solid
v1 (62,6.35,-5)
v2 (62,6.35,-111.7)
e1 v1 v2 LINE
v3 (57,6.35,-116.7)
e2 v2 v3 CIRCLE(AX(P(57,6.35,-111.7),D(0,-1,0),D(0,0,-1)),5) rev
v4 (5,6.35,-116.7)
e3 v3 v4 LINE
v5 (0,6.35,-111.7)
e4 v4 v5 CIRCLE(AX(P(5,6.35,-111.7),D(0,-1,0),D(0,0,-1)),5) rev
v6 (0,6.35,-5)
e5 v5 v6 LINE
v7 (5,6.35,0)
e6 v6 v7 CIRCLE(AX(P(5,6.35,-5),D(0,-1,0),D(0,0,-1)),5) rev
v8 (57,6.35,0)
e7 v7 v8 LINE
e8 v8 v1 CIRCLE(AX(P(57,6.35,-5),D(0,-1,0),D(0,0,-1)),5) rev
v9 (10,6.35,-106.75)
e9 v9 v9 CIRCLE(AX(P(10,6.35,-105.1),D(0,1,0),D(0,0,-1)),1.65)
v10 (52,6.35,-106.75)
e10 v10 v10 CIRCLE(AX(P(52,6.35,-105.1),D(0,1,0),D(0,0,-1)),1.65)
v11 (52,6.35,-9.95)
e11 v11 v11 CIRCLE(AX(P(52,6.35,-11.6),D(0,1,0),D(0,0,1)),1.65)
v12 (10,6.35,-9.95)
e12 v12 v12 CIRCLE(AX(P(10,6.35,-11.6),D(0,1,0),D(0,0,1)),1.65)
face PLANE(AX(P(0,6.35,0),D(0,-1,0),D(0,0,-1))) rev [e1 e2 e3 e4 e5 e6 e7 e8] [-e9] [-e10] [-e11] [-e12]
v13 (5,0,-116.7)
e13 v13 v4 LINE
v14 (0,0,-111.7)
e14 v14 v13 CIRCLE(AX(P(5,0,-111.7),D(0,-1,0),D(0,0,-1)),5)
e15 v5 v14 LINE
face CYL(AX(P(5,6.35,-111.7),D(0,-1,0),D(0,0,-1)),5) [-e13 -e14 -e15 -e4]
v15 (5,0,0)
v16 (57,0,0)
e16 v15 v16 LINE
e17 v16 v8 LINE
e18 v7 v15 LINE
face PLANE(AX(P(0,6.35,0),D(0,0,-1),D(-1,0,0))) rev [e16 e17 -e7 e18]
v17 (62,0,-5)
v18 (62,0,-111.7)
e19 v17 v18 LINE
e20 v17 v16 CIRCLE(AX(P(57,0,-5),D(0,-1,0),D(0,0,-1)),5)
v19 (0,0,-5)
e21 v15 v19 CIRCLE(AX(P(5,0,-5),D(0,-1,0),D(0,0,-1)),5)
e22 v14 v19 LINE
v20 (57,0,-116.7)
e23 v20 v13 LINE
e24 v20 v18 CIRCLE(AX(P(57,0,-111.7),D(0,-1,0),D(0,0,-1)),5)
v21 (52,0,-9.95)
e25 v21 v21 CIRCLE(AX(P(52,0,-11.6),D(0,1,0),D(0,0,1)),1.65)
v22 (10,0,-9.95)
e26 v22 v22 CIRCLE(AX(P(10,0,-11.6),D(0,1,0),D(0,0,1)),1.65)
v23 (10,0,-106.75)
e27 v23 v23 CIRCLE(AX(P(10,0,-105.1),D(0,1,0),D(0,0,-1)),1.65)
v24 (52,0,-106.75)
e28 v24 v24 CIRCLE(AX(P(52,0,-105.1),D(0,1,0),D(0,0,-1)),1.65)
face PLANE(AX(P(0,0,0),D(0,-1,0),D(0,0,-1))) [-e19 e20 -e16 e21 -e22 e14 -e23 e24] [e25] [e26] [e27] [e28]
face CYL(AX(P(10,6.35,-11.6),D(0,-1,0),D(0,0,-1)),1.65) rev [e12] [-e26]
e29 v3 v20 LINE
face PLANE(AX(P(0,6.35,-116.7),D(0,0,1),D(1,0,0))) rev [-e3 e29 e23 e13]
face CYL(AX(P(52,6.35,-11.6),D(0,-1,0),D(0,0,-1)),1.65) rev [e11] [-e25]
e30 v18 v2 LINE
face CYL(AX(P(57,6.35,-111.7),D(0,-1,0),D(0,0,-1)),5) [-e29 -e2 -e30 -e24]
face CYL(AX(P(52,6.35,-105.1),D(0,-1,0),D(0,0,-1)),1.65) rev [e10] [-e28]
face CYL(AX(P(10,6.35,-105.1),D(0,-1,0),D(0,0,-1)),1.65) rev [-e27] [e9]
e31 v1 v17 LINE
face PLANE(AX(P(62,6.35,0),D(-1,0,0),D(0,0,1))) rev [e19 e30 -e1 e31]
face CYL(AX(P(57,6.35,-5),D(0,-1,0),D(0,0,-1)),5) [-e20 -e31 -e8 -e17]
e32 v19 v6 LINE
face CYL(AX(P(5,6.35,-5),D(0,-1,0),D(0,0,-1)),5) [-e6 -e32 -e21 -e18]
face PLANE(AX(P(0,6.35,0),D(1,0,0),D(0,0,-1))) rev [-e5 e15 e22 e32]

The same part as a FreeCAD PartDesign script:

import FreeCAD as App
import Part
import Sketcher

V = App.Vector
Q = App.Units.Quantity


def edges_at(feature, points):
    """Names of the edges that pass closest to the given points."""
    edges = feature.Shape.Edges
    near = lambda p: min(range(len(edges)), key=lambda i: edges[i].distToShape(Part.Vertex(*p))[0])
    return sorted({f"Edge{near(p) + 1}" for p in points})

doc = App.newDocument("Part")
body = doc.addObject("PartDesign::Body", "Body")

# Sketch on XZ plane
sketch1 = doc.addObject("Sketcher::SketchObject", "Sketch")
body.addObject(sketch1)
sketch1.AttachmentSupport = (doc.XZ_Plane, [""])
sketch1.MapMode = "FlatFace"
sketch1.addGeometry(Part.LineSegment(V(0, -116.7, 0), V(0, 0, 0)), False)
sketch1.addGeometry(Part.LineSegment(V(0, 0, 0), V(62, 0, 0)), False)
sketch1.addGeometry(Part.LineSegment(V(62, 0, 0), V(62, -116.7, 0)), False)
sketch1.addGeometry(Part.LineSegment(V(62, -116.7, 0), V(0, -116.7, 0)), False)
sketch1.addGeometry(Part.Circle(V(10, -11.6, 0), V(0, 0, 1), 1.6), False)
sketch1.addGeometry(Part.Circle(V(52, -11.6, 0), V(0, 0, 1), 1.6), False)
sketch1.addGeometry(Part.Circle(V(10, -105.1, 0), V(0, 0, 1), 1.6), False)
sketch1.addGeometry(Part.Circle(V(52, -105.1, 0), V(0, 0, 1), 1.6), False)
sketch1.addConstraint(Sketcher.Constraint("Coincident", 0, 2, 1, 1))
sketch1.addConstraint(Sketcher.Constraint("Coincident", 1, 2, 2, 1))
sketch1.addConstraint(Sketcher.Constraint("Coincident", 2, 2, 3, 1))
sketch1.addConstraint(Sketcher.Constraint("Coincident", 3, 2, 0, 1))
sketch1.addConstraint(Sketcher.Constraint("Vertical", 0))
sketch1.addConstraint(Sketcher.Constraint("Horizontal", 1))
sketch1.addConstraint(Sketcher.Constraint("Vertical", 2))
sketch1.addConstraint(Sketcher.Constraint("Horizontal", 3))
sketch1.addConstraint(Sketcher.Constraint("Coincident", 0, 2, -1, 1))
sketch1.addConstraint(Sketcher.Constraint("Equal", 4, 5))
sketch1.addConstraint(Sketcher.Constraint("Equal", 5, 6))
sketch1.addConstraint(Sketcher.Constraint("Equal", 6, 7))
sketch1.addConstraint(Sketcher.Constraint("Horizontal", 4, 3, 5, 3))
sketch1.addConstraint(Sketcher.Constraint("Horizontal", 6, 3, 7, 3))
sketch1.addConstraint(Sketcher.Constraint("Vertical", 4, 3, 6, 3))
sketch1.addConstraint(Sketcher.Constraint("Vertical", 5, 3, 7, 3))
sketch1.addConstraint(Sketcher.Constraint("Diameter", 4, Q("3.3 mm")))
sketch1.addConstraint(Sketcher.Constraint("DistanceX", 1, 1, 1, 2, Q("62 mm")))
sketch1.addConstraint(Sketcher.Constraint("DistanceY", 0, 1, 0, 2, Q("116.7 mm")))
sketch1.addConstraint(Sketcher.Constraint("DistanceX", -1, 1, 4, 3, Q("10 mm")))
sketch1.addConstraint(Sketcher.Constraint("DistanceX", -1, 1, 5, 3, Q("52 mm")))
sketch1.addConstraint(Sketcher.Constraint("DistanceY", 4, 3, -1, 1, Q("11.6 mm")))
sketch1.addConstraint(Sketcher.Constraint("DistanceY", 6, 3, -1, 1, Q("105.1 mm")))
pad1 = doc.addObject("PartDesign::Pad", "Pad")
body.addObject(pad1)
pad1.Profile = sketch1
pad1.Length = 6.35
pad1.Reversed = True
doc.recompute()

fillet = doc.addObject("PartDesign::Fillet", "Fillet")
body.addObject(fillet)
fillet.Base = (pad1, edges_at(pad1, [
    (0, 3.175, -116.7),
    (62, 3.175, -116.7),
    (62, 3.175, 0),
    (0, 3.175, 0),
]))
fillet.Radius = 5

doc.recompute()
